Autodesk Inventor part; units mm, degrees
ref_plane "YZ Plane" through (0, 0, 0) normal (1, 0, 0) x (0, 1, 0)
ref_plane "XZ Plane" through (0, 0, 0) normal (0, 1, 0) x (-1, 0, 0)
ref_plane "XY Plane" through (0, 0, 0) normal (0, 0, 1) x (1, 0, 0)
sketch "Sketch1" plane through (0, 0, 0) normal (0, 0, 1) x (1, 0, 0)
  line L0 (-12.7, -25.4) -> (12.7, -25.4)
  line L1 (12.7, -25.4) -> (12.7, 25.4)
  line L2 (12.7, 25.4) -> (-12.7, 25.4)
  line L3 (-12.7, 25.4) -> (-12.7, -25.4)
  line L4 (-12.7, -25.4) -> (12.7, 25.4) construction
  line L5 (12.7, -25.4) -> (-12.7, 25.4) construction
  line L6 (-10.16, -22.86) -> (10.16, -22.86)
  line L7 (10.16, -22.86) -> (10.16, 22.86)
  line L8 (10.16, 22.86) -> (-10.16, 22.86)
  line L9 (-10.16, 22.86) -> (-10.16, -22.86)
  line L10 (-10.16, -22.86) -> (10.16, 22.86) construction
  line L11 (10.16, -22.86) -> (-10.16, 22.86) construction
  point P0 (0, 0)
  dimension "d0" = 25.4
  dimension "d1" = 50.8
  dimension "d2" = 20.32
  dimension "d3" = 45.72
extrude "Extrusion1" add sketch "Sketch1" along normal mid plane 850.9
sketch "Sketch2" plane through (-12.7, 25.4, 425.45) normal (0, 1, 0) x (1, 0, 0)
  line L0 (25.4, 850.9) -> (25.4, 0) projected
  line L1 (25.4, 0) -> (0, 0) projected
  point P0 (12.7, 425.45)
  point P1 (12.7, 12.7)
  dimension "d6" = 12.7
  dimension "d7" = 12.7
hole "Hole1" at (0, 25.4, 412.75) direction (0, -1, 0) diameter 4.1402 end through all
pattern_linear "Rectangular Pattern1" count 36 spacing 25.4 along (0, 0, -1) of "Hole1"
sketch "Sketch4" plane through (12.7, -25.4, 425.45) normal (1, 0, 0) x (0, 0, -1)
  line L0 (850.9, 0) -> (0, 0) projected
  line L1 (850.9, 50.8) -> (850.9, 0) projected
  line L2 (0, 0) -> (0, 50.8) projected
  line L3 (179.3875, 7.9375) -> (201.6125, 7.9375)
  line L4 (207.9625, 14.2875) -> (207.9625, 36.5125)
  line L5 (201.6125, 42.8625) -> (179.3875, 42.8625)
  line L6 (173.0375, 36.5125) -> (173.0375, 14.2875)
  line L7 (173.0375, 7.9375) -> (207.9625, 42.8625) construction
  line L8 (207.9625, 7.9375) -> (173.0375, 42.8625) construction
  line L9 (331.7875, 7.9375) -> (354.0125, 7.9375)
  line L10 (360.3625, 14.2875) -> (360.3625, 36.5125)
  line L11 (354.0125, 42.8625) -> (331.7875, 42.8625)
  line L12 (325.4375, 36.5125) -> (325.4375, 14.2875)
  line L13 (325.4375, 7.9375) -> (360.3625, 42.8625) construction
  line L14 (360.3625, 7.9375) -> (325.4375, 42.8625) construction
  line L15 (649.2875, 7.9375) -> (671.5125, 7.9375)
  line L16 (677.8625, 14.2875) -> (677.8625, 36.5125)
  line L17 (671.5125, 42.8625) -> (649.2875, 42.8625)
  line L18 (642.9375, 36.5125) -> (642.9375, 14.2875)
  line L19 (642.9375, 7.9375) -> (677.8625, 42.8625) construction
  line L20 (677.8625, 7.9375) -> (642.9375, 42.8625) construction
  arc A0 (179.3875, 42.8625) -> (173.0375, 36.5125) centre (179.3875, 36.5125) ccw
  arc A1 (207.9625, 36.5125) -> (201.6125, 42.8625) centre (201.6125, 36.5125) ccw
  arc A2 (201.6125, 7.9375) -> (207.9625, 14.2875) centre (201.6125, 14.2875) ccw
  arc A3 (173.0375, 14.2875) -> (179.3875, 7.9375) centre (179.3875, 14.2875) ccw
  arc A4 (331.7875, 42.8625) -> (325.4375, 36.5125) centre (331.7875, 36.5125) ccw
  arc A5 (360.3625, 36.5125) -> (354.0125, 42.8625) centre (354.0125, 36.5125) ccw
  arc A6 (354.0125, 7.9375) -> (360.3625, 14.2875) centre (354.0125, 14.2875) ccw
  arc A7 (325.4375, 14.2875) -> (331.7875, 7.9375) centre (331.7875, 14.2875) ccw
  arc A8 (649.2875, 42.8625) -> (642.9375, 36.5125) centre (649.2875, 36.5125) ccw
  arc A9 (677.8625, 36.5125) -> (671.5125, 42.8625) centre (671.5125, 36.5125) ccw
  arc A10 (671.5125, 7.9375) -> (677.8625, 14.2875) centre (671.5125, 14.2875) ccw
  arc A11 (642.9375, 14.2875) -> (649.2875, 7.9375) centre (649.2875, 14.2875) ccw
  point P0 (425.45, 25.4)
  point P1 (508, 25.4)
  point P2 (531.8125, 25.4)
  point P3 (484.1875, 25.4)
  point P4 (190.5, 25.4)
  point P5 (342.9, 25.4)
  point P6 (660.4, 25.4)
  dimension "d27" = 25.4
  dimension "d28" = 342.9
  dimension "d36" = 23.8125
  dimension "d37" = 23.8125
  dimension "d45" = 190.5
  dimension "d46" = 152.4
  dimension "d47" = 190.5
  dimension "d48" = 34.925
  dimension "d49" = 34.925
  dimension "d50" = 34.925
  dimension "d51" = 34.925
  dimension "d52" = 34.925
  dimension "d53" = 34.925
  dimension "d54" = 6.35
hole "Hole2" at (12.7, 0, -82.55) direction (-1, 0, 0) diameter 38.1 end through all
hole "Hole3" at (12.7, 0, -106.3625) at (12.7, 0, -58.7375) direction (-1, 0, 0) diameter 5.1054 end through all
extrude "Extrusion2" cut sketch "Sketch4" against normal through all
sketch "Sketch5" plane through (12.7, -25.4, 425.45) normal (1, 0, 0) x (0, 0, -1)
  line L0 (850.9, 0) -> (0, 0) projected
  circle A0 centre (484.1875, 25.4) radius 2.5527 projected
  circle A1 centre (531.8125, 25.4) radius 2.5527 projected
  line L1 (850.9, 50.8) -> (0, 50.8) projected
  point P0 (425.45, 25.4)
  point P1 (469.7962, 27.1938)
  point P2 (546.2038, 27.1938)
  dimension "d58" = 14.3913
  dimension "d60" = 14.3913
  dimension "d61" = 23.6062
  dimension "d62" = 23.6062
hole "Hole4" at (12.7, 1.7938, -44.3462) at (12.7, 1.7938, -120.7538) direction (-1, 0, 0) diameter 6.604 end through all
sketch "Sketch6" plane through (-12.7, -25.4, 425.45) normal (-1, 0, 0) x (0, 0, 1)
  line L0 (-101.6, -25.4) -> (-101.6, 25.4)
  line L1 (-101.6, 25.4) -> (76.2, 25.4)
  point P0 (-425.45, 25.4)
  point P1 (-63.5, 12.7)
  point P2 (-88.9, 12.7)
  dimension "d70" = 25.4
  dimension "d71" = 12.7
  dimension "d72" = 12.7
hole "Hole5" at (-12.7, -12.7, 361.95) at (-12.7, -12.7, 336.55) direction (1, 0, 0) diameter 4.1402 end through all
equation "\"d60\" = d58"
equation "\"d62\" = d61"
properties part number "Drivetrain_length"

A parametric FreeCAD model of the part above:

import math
import FreeCAD as App
import Part
import Sketcher
from FreeCAD import Vector
Q = App.Units.Quantity

doc = App.newDocument("Part")
body = doc.addObject("PartDesign::Body", "Body")

# Sketch on XY plane
sketch1 = doc.addObject("Sketcher::SketchObject", "Sketch")
body.addObject(sketch1)
sketch1.AttachmentSupport = (doc.XY_Plane, [""])
sketch1.MapMode = "FlatFace"
sketch1.addGeometry([
    Part.LineSegment(Vector(-13, 25, 0), Vector(-13, -25, 0)),  # 0
    Part.LineSegment(Vector(-13, -25, 0), Vector(13, -25, 0)),  # 1
    Part.LineSegment(Vector(13, -25, 0), Vector(13, 25, 0)),  # 2
    Part.LineSegment(Vector(13, 25, 0), Vector(-13, 25, 0)),  # 3
    Part.LineSegment(Vector(10, -23, 0), Vector(-10, -23, 0)),  # 4
    Part.LineSegment(Vector(-10, -23, 0), Vector(-10, 23, 0)),  # 5
    Part.LineSegment(Vector(-10, 23, 0), Vector(10, 23, 0)),  # 6
    Part.LineSegment(Vector(10, 23, 0), Vector(10, -23, 0)),  # 7
], False)
sketch1.addConstraint([
    Sketcher.Constraint("Coincident", 0, 2, 1, 1),
    Sketcher.Constraint("Coincident", 1, 2, 2, 1),
    Sketcher.Constraint("Coincident", 2, 2, 3, 1),
    Sketcher.Constraint("Coincident", 3, 2, 0, 1),
    Sketcher.Constraint("Coincident", 4, 2, 5, 1),
    Sketcher.Constraint("Coincident", 5, 2, 6, 1),
    Sketcher.Constraint("Coincident", 6, 2, 7, 1),
    Sketcher.Constraint("Coincident", 7, 2, 4, 1),
    Sketcher.Constraint("Vertical", 0),
    Sketcher.Constraint("Horizontal", 1),
    Sketcher.Constraint("Vertical", 2),
    Sketcher.Constraint("Horizontal", 3),
    Sketcher.Constraint("Horizontal", 4),
    Sketcher.Constraint("Vertical", 5),
    Sketcher.Constraint("Horizontal", 6),
    Sketcher.Constraint("Vertical", 7),
    Sketcher.Constraint("Symmetric", 0, 2, 2, 2, -1, 1),
    Sketcher.Constraint("Symmetric", 4, 2, 6, 2, -1, 1),
    Sketcher.Constraint("DistanceX", 1, 1, 1, 2, Q("1 in")),
    Sketcher.Constraint("DistanceY", 0, 2, 0, 1, Q("2 in")),
    Sketcher.Constraint("DistanceX", 4, 2, 4, 1, Q("0.8 in")),
    Sketcher.Constraint("DistanceY", 5, 1, 5, 2, Q("1.8 in")),
])
pad1 = doc.addObject("PartDesign::Pad", "Pad")
body.addObject(pad1)
pad1.Profile = sketch1
pad1.Length = Q("33.5 in")
pad1.Midplane = True

# Sketch on XZ plane
sketch2 = doc.addObject("Sketcher::SketchObject", "Sketch001")
body.addObject(sketch2)
sketch2.AttachmentSupport = (doc.XZ_Plane, [""])
sketch2.MapMode = "FlatFace"
sketch2.AttachmentOffset = App.Placement(Vector(0, 0, -1 * 25.4), App.Rotation())
sketch2.addGeometry(Part.Circle(Vector(0, 412.8, 0), Vector(0, 0, 1), 2.1), False)
sketch2.addConstraint([
    Sketcher.Constraint("PointOnObject", 0, 3, -2),
    Sketcher.Constraint("Diameter", 0, Q("0.163 in")),
    Sketcher.Constraint("DistanceY", -1, 1, 0, 3, Q("16.25 in")),
])
doc.recompute()
hole = doc.addObject("PartDesign::Hole", "Hole")
body.addObject(hole)
hole.Profile = sketch2
hole.ThreadType = "None"
hole.Diameter = Q("0.163 in")
hole.DepthType = "ThroughAll"
hole.Reversed = True
doc.recompute()

linearpattern = doc.addObject("PartDesign::LinearPattern", "LinearPattern")
body.addObject(linearpattern)
linearpattern.Originals = [hole]
linearpattern.Direction = (doc.Z_Axis, [""])
linearpattern.Mode = "offset"
linearpattern.Offset = Q("1 in")
linearpattern.Occurrences = 36
linearpattern.Reversed = True
body.Tip = linearpattern

# Sketch on YZ plane
sketch3 = doc.addObject("Sketcher::SketchObject", "Sketch002")
body.addObject(sketch3)
sketch3.AttachmentSupport = (doc.YZ_Plane, [""])
sketch3.MapMode = "FlatFace"
sketch3.AttachmentOffset = App.Placement(Vector(0, 0, 0.5 * 25.4), App.Rotation())
sketch3.addGeometry(Part.Circle(Vector(0, -83, 0), Vector(0, 0, 1), 19), False)
sketch3.addConstraint([
    Sketcher.Constraint("PointOnObject", 0, 3, -2),
    Sketcher.Constraint("Diameter", 0, Q("1.5 in")),
    Sketcher.Constraint("DistanceY", 0, 3, -1, 1, Q("3.25 in")),
])
doc.recompute()
hole2 = doc.addObject("PartDesign::Hole", "Hole001")
body.addObject(hole2)
hole2.Profile = sketch3
hole2.ThreadType = "None"
hole2.Diameter = Q("1.5 in")
hole2.DepthType = "ThroughAll"

# Sketch on YZ plane
sketch4 = doc.addObject("Sketcher::SketchObject", "Sketch003")
body.addObject(sketch4)
sketch4.AttachmentSupport = (doc.YZ_Plane, [""])
sketch4.MapMode = "FlatFace"
sketch4.AttachmentOffset = App.Placement(Vector(0, 0, 0.5 * 25.4), App.Rotation())
sketch4.addGeometry([
    Part.Circle(Vector(0, -106.4, 0), Vector(0, 0, 1), 2.6),
    Part.Circle(Vector(0, -58.7, 0), Vector(0, 0, 1), 2.6),
], False)
sketch4.addConstraint([
    Sketcher.Constraint("Equal", 0, 1),
    Sketcher.Constraint("PointOnObject", 0, 3, -2),
    Sketcher.Constraint("PointOnObject", 1, 3, -2),
    Sketcher.Constraint("Diameter", 0, Q("0.201 in")),
    Sketcher.Constraint("DistanceY", 0, 3, -1, 1, Q("4.1875 in")),
    Sketcher.Constraint("DistanceY", 1, 3, -1, 1, Q("2.3125 in")),
])
doc.recompute()
hole3 = doc.addObject("PartDesign::Hole", "Hole002")
body.addObject(hole3)
hole3.Profile = sketch4
hole3.ThreadType = "None"
hole3.Diameter = Q("0.201 in")
hole3.DepthType = "ThroughAll"

# Sketch on YZ plane
sketch5 = doc.addObject("Sketcher::SketchObject", "Sketch004")
body.addObject(sketch5)
sketch5.AttachmentSupport = (doc.YZ_Plane, [""])
sketch5.MapMode = "FlatFace"
sketch5.AttachmentOffset = App.Placement(Vector(0, 0, 0.5 * 25.4), App.Rotation())
sketch5.addGeometry([
    Part.ArcOfCircle(Part.Circle(Vector(-11, 246, 0), Vector(0, 0, 1), 6), math.radians(90), math.radians(180)),  # 0
    Part.LineSegment(Vector(-17, 246, 0), Vector(-17, 224, 0)),  # 1
    Part.ArcOfCircle(Part.Circle(Vector(-11, 224, 0), Vector(0, 0, 1), 6), math.radians(180), math.radians(270)),  # 2
    Part.LineSegment(Vector(-11, 217, 0), Vector(11, 217, 0)),  # 3
    Part.ArcOfCircle(Part.Circle(Vector(11, 224, 0), Vector(0, 0, 1), 6), math.radians(-90), math.radians(0)),  # 4
    Part.LineSegment(Vector(17, 224, 0), Vector(17, 246, 0)),  # 5
    Part.ArcOfCircle(Part.Circle(Vector(11, 246, 0), Vector(0, 0, 1), 6), math.radians(0), math.radians(90)),  # 6
    Part.LineSegment(Vector(11, 252, 0), Vector(-11, 252, 0)),  # 7
    Part.ArcOfCircle(Part.Circle(Vector(-11, 94, 0), Vector(0, 0, 1), 6), math.radians(90), math.radians(180)),  # 8
    Part.LineSegment(Vector(-17, 94, 0), Vector(-17, 71, 0)),  # 9
    Part.ArcOfCircle(Part.Circle(Vector(-11, 71, 0), Vector(0, 0, 1), 6), math.radians(180), math.radians(270)),  # 10
    Part.LineSegment(Vector(-11, 65, 0), Vector(11, 65, 0)),  # 11
    Part.ArcOfCircle(Part.Circle(Vector(11, 71, 0), Vector(0, 0, 1), 6), math.radians(-90), math.radians(0)),  # 12
    Part.LineSegment(Vector(17, 71, 0), Vector(17, 94, 0)),  # 13
    Part.ArcOfCircle(Part.Circle(Vector(11, 94, 0), Vector(0, 0, 1), 6), math.radians(0), math.radians(90)),  # 14
    Part.LineSegment(Vector(11, 100, 0), Vector(-11, 100, 0)),  # 15
    Part.ArcOfCircle(Part.Circle(Vector(-11, -224, 0), Vector(0, 0, 1), 6), math.radians(90), math.radians(180)),  # 16
    Part.LineSegment(Vector(-17, -224, 0), Vector(-17, -246, 0)),  # 17
    Part.ArcOfCircle(Part.Circle(Vector(-11, -246, 0), Vector(0, 0, 1), 6), math.radians(180), math.radians(270)),  # 18
    Part.LineSegment(Vector(-11, -252, 0), Vector(11, -252, 0)),  # 19
    Part.ArcOfCircle(Part.Circle(Vector(11, -246, 0), Vector(0, 0, 1), 6), math.radians(-90), math.radians(0)),  # 20
    Part.LineSegment(Vector(17, -246, 0), Vector(17, -224, 0)),  # 21
    Part.ArcOfCircle(Part.Circle(Vector(11, -224, 0), Vector(0, 0, 1), 6), math.radians(0), math.radians(90)),  # 22
    Part.LineSegment(Vector(11, -217, 0), Vector(-11, -217, 0)),  # 23
], False)
sketch5.addConstraint([
    Sketcher.Constraint("Tangent", 0, 2, 1, 1),
    Sketcher.Constraint("Tangent", 1, 2, 2, 1),
    Sketcher.Constraint("Tangent", 2, 2, 3, 1),
    Sketcher.Constraint("Tangent", 3, 2, 4, 1),
    Sketcher.Constraint("Tangent", 4, 2, 5, 1),
    Sketcher.Constraint("Tangent", 5, 2, 6, 1),
    Sketcher.Constraint("Tangent", 6, 2, 7, 1),
    Sketcher.Constraint("Tangent", 7, 2, 0, 1),
    Sketcher.Constraint("Tangent", 8, 2, 9, 1),
    Sketcher.Constraint("Tangent", 9, 2, 10, 1),
    Sketcher.Constraint("Tangent", 10, 2, 11, 1),
    Sketcher.Constraint("Tangent", 11, 2, 12, 1),
    Sketcher.Constraint("Tangent", 12, 2, 13, 1),
    Sketcher.Constraint("Tangent", 13, 2, 14, 1),
    Sketcher.Constraint("Tangent", 14, 2, 15, 1),
    Sketcher.Constraint("Tangent", 15, 2, 8, 1),
    Sketcher.Constraint("Tangent", 16, 2, 17, 1),
    Sketcher.Constraint("Tangent", 17, 2, 18, 1),
    Sketcher.Constraint("Tangent", 18, 2, 19, 1),
    Sketcher.Constraint("Tangent", 19, 2, 20, 1),
    Sketcher.Constraint("Tangent", 20, 2, 21, 1),
    Sketcher.Constraint("Tangent", 21, 2, 22, 1),
    Sketcher.Constraint("Tangent", 22, 2, 23, 1),
    Sketcher.Constraint("Tangent", 23, 2, 16, 1),
    Sketcher.Constraint("Vertical", 1),
    Sketcher.Constraint("Horizontal", 3),
    Sketcher.Constraint("Vertical", 5),
    Sketcher.Constraint("Horizontal", 7),
    Sketcher.Constraint("Vertical", 9),
    Sketcher.Constraint("Horizontal", 11),
    Sketcher.Constraint("Vertical", 13),
    Sketcher.Constraint("Horizontal", 15),
    Sketcher.Constraint("Vertical", 17),
    Sketcher.Constraint("Horizontal", 19),
    Sketcher.Constraint("Vertical", 21),
    Sketcher.Constraint("Horizontal", 23),
    Sketcher.Constraint("Equal", 0, 2),
    Sketcher.Constraint("Equal", 2, 4),
    Sketcher.Constraint("Equal", 4, 6),
    Sketcher.Constraint("Equal", 6, 8),
    Sketcher.Constraint("Equal", 8, 10),
    Sketcher.Constraint("Equal", 10, 12),
    Sketcher.Constraint("Equal", 12, 14),
    Sketcher.Constraint("Equal", 14, 16),
    Sketcher.Constraint("Equal", 16, 18),
    Sketcher.Constraint("Equal", 18, 20),
    Sketcher.Constraint("Equal", 20, 22),
    Sketcher.Constraint("Symmetric", 4, 3, 16, 3, -1, 1),
    Sketcher.Constraint("Symmetric", 0, 3, 20, 3, -1, 1),
    Sketcher.Constraint("Vertical", 2, 3, 8, 3),
    Sketcher.Constraint("Vertical", 6, 3, 12, 3),
    Sketcher.Constraint("Vertical", 10, 3, 16, 3),
    Sketcher.Constraint("Equal", 23, 1),
    Sketcher.Constraint("Equal", 5, 9),
    Sketcher.Constraint("Radius", 0, Q("0.25 in")),
    Sketcher.Constraint("DistanceY", 8, 3, 0, 3, Q("6 in")),
    Sketcher.Constraint("DistanceY", 16, 3, 8, 3, Q("12.5 in")),
    Sketcher.Constraint("DistanceX", 3, 1, 3, 2, Q("0.875 in")),
])
pocket1 = doc.addObject("PartDesign::Pocket", "Pocket")
body.addObject(pocket1)
pocket1.Profile = sketch5
pocket1.Type = "ThroughAll"

# Sketch on YZ plane
sketch6 = doc.addObject("Sketcher::SketchObject", "Sketch005")
body.addObject(sketch6)
sketch6.AttachmentSupport = (doc.YZ_Plane, [""])
sketch6.MapMode = "FlatFace"
sketch6.AttachmentOffset = App.Placement(Vector(0, 0, 0.5 * 25.4), App.Rotation())
sketch6.addGeometry([
    Part.Circle(Vector(1.8, -44.3, 0), Vector(0, 0, 1), 3.3),
    Part.Circle(Vector(1.8, -120.8, 0), Vector(0, 0, 1), 3.3),
], False)
sketch6.addConstraint([
    Sketcher.Constraint("Equal", 0, 1),
    Sketcher.Constraint("Vertical", 0, 3, 1, 3),
    Sketcher.Constraint("Diameter", 0, Q("0.26 in")),
    Sketcher.Constraint("DistanceX", -1, 1, 0, 3, Q("1.7938 mm")),
    Sketcher.Constraint("DistanceY", 0, 3, -1, 1, Q("44.3462 mm")),
    Sketcher.Constraint("DistanceY", 1, 3, -1, 1, Q("120.7538 mm")),
])
doc.recompute()
hole4 = doc.addObject("PartDesign::Hole", "Hole003")
body.addObject(hole4)
hole4.Profile = sketch6
hole4.ThreadType = "None"
hole4.Diameter = Q("0.26 in")
hole4.DepthType = "ThroughAll"

# Sketch on YZ plane
sketch7 = doc.addObject("Sketcher::SketchObject", "Sketch006")
body.addObject(sketch7)
sketch7.AttachmentSupport = (doc.YZ_Plane, [""])
sketch7.MapMode = "FlatFace"
sketch7.AttachmentOffset = App.Placement(Vector(0, 0, -0.5 * 25.4), App.Rotation())
sketch7.addGeometry([
    Part.Circle(Vector(-12.7, 361.9, 0), Vector(0, 0, 1), 2.1),
    Part.Circle(Vector(-12.7, 336.6, 0), Vector(0, 0, 1), 2.1),
], False)
sketch7.addConstraint([
    Sketcher.Constraint("Equal", 0, 1),
    Sketcher.Constraint("Vertical", 0, 3, 1, 3),
    Sketcher.Constraint("Diameter", 0, Q("0.163 in")),
    Sketcher.Constraint("DistanceY", 1, 3, 0, 3, Q("1 in")),
    Sketcher.Constraint("DistanceX", 0, 3, -1, 1, Q("0.5 in")),
    Sketcher.Constraint("DistanceY", -1, 1, 0, 3, Q("14.25 in")),
])
doc.recompute()
hole5 = doc.addObject("PartDesign::Hole", "Hole004")
body.addObject(hole5)
hole5.Profile = sketch7
hole5.ThreadType = "None"
hole5.Diameter = Q("0.163 in")
hole5.DepthType = "ThroughAll"
hole5.Reversed = True

doc.recompute()
